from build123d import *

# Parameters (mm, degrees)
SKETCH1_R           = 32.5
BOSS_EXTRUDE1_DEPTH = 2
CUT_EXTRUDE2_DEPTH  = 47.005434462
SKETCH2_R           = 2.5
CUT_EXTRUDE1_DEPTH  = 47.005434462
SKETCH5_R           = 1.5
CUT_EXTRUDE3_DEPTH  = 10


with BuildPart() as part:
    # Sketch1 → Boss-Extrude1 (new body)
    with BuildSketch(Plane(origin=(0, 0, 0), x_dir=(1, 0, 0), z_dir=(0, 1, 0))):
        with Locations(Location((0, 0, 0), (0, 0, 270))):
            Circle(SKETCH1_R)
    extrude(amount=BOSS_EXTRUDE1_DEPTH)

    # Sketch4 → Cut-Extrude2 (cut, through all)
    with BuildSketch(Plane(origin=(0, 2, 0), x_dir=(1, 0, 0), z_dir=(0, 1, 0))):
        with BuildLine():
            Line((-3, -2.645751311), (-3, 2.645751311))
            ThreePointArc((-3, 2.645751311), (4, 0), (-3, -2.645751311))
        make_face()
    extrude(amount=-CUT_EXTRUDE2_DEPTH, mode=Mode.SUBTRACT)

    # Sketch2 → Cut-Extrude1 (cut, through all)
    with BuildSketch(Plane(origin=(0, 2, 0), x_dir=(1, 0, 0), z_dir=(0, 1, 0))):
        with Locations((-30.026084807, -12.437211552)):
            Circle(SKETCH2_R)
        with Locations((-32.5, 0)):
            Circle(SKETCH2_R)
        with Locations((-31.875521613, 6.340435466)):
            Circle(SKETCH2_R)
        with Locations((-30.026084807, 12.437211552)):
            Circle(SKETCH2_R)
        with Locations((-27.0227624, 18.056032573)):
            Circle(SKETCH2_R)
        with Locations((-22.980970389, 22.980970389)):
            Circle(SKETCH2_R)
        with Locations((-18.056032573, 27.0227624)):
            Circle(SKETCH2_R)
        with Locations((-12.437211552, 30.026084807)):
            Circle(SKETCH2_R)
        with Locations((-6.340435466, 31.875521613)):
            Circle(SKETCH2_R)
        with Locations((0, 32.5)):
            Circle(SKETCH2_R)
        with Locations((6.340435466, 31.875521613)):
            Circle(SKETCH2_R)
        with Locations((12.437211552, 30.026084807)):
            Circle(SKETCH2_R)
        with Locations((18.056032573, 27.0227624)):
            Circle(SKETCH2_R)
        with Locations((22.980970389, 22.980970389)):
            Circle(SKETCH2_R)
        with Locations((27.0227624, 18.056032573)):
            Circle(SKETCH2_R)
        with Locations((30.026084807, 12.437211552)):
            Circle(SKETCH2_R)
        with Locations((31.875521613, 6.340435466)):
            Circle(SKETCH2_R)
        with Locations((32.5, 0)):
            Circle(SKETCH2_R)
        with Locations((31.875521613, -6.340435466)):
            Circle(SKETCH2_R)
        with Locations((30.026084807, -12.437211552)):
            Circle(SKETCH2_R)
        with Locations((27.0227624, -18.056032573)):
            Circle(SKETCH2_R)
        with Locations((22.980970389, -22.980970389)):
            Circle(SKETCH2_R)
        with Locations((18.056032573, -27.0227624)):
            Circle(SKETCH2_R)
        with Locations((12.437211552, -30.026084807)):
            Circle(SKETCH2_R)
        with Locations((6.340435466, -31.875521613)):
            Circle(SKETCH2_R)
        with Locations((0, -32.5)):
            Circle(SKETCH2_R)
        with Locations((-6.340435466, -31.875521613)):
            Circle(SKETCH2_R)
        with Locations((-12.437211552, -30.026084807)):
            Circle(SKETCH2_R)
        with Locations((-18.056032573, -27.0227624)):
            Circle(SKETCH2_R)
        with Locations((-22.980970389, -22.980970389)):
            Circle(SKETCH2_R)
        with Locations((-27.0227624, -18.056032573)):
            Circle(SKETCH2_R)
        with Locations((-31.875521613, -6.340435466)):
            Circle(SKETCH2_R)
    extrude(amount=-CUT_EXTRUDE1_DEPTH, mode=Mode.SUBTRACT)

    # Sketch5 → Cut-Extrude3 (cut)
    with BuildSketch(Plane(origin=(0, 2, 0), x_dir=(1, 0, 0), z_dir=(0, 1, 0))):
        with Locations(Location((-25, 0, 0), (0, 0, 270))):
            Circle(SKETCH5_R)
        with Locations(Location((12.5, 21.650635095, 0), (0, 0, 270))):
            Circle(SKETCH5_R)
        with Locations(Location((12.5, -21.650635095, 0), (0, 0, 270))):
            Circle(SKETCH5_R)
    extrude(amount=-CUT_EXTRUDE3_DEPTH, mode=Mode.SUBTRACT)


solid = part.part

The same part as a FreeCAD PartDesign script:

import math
import FreeCAD as App
import Part
import Sketcher

V = App.Vector

doc = App.newDocument("Part")
body = doc.addObject("PartDesign::Body", "Body")

# Sketch on XZ plane
sketch1 = doc.addObject("Sketcher::SketchObject", "Sketch")
body.addObject(sketch1)
sketch1.AttachmentSupport = (doc.XZ_Plane, [""])
sketch1.MapMode = "FlatFace"
sketch1.addGeometry(Part.Circle(V(0, 0, 0), V(0, 0, 1), 32), False)
sketch1.addConstraint([
    Sketcher.Constraint("Coincident", 0, 3, -1, 1),
    Sketcher.Constraint("Diameter", 0, 65.0),
])
pad1 = doc.addObject("PartDesign::Pad", "Pad")
body.addObject(pad1)
pad1.Profile = sketch1
pad1.Length = 2
pad1.Reversed = True

# Sketch on XZ plane
sketch2 = doc.addObject("Sketcher::SketchObject", "Sketch001")
body.addObject(sketch2)
sketch2.AttachmentSupport = (doc.XZ_Plane, [""])
sketch2.MapMode = "FlatFace"
sketch2.AttachmentOffset = App.Placement(V(0, 0, -2), App.Rotation())
sketch2.addGeometry([
    Part.LineSegment(V(-3, -2.6, 0), V(-3, 2.6, 0)),
    Part.ArcOfCircle(Part.Circle(V(0, 0, 0), V(0, 0, 1), 4), math.radians(-139), math.radians(139)),
], False)
sketch2.addConstraint([
    Sketcher.Constraint("Coincident", 0, 1, 1, 1),
    Sketcher.Constraint("Coincident", 1, 2, 0, 2),
    Sketcher.Constraint("Vertical", 0),
    Sketcher.Constraint("Coincident", 1, 3, -1, 1),
    Sketcher.Constraint("Radius", 1, 4.0),
    Sketcher.Constraint("DistanceX", 0, 1, -1, 1, 3.0),
])
pocket1 = doc.addObject("PartDesign::Pocket", "Pocket")
body.addObject(pocket1)
pocket1.Profile = sketch2
pocket1.Type = "ThroughAll"
pocket1.Reversed = True

# Sketch on XZ plane
sketch3 = doc.addObject("Sketcher::SketchObject", "Sketch002")
body.addObject(sketch3)
sketch3.AttachmentSupport = (doc.XZ_Plane, [""])
sketch3.MapMode = "FlatFace"
sketch3.AttachmentOffset = App.Placement(V(0, 0, -2), App.Rotation())
sketch3.addGeometry([
    Part.Circle(V(-30, 12.4, 0), V(0, 0, 1), 2.5),  # 0
    Part.Circle(V(-32.5, 0, 0), V(0, 0, 1), 2.5),  # 1
    Part.Circle(V(-31.9, -6.3, 0), V(0, 0, 1), 2.5),  # 2
    Part.Circle(V(-30, -12.4, 0), V(0, 0, 1), 2.5),  # 3
    Part.Circle(V(-27, -18.1, 0), V(0, 0, 1), 2.5),  # 4
    Part.Circle(V(-23, -23, 0), V(0, 0, 1), 2.5),  # 5
    Part.Circle(V(-18.1, -27, 0), V(0, 0, 1), 2.5),  # 6
    Part.Circle(V(-12.4, -30, 0), V(0, 0, 1), 2.5),  # 7
    Part.Circle(V(-6.3, -31.9, 0), V(0, 0, 1), 2.5),  # 8
    Part.Circle(V(0, -32.5, 0), V(0, 0, 1), 2.5),  # 9
    Part.Circle(V(6.3, -31.9, 0), V(0, 0, 1), 2.5),  # 10
    Part.Circle(V(12.4, -30, 0), V(0, 0, 1), 2.5),  # 11
    Part.Circle(V(18.1, -27, 0), V(0, 0, 1), 2.5),  # 12
    Part.Circle(V(23, -23, 0), V(0, 0, 1), 2.5),  # 13
    Part.Circle(V(27, -18.1, 0), V(0, 0, 1), 2.5),  # 14
    Part.Circle(V(30, -12.4, 0), V(0, 0, 1), 2.5),  # 15
    Part.Circle(V(31.9, -6.3, 0), V(0, 0, 1), 2.5),  # 16
    Part.Circle(V(32.5, 0, 0), V(0, 0, 1), 2.5),  # 17
    Part.Circle(V(31.9, 6.3, 0), V(0, 0, 1), 2.5),  # 18
    Part.Circle(V(30, 12.4, 0), V(0, 0, 1), 2.5),  # 19
    Part.Circle(V(27, 18.1, 0), V(0, 0, 1), 2.5),  # 20
    Part.Circle(V(23, 23, 0), V(0, 0, 1), 2.5),  # 21
    Part.Circle(V(18.1, 27, 0), V(0, 0, 1), 2.5),  # 22
    Part.Circle(V(12.4, 30, 0), V(0, 0, 1), 2.5),  # 23
    Part.Circle(V(6.3, 31.9, 0), V(0, 0, 1), 2.5),  # 24
    Part.Circle(V(0, 32.5, 0), V(0, 0, 1), 2.5),  # 25
    Part.Circle(V(-6.3, 31.9, 0), V(0, 0, 1), 2.5),  # 26
    Part.Circle(V(-12.4, 30, 0), V(0, 0, 1), 2.5),  # 27
    Part.Circle(V(-18.1, 27, 0), V(0, 0, 1), 2.5),  # 28
    Part.Circle(V(-23, 23, 0), V(0, 0, 1), 2.5),  # 29
    Part.Circle(V(-27, 18.1, 0), V(0, 0, 1), 2.5),  # 30
    Part.Circle(V(-31.9, 6.3, 0), V(0, 0, 1), 2.5),  # 31
], False)
sketch3.addConstraint([
    Sketcher.Constraint("Equal", 0, 1),
    Sketcher.Constraint("Equal", 1, 2),
    Sketcher.Constraint("Equal", 2, 3),
    Sketcher.Constraint("Equal", 3, 4),
    Sketcher.Constraint("Equal", 4, 5),
    Sketcher.Constraint("Equal", 5, 6),
    Sketcher.Constraint("Equal", 6, 7),
    Sketcher.Constraint("Equal", 7, 8),
    Sketcher.Constraint("Equal", 8, 9),
    Sketcher.Constraint("Equal", 9, 10),
    Sketcher.Constraint("Equal", 10, 11),
    Sketcher.Constraint("Equal", 11, 12),
    Sketcher.Constraint("Equal", 12, 13),
    Sketcher.Constraint("Equal", 13, 14),
    Sketcher.Constraint("Equal", 14, 15),
    Sketcher.Constraint("Equal", 15, 16),
    Sketcher.Constraint("Equal", 16, 17),
    Sketcher.Constraint("Equal", 17, 18),
    Sketcher.Constraint("Equal", 18, 19),
    Sketcher.Constraint("Equal", 19, 20),
    Sketcher.Constraint("Equal", 20, 21),
    Sketcher.Constraint("Equal", 21, 22),
    Sketcher.Constraint("Equal", 22, 23),
    Sketcher.Constraint("Equal", 23, 24),
    Sketcher.Constraint("Equal", 24, 25),
    Sketcher.Constraint("Equal", 25, 26),
    Sketcher.Constraint("Equal", 26, 27),
    Sketcher.Constraint("Equal", 27, 28),
    Sketcher.Constraint("Equal", 28, 29),
    Sketcher.Constraint("Equal", 29, 30),
    Sketcher.Constraint("Equal", 30, 31),
    Sketcher.Constraint("Symmetric", 0, 3, 15, 3, -1, 1),
    Sketcher.Constraint("Symmetric", 1, 3, 17, 3, -1, 1),
    Sketcher.Constraint("Symmetric", 2, 3, 18, 3, -1, 1),
    Sketcher.Constraint("Symmetric", 3, 3, 19, 3, -1, 1),
    Sketcher.Constraint("Symmetric", 4, 3, 20, 3, -1, 1),
    Sketcher.Constraint("Symmetric", 5, 3, 21, 3, -1, 1),
    Sketcher.Constraint("Symmetric", 6, 3, 22, 3, -1, 1),
    Sketcher.Constraint("Symmetric", 7, 3, 23, 3, -1, 1),
    Sketcher.Constraint("Symmetric", 8, 3, 24, 3, -1, 1),
    Sketcher.Constraint("Symmetric", 9, 3, 25, 3, -1, 1),
    Sketcher.Constraint("Symmetric", 10, 3, 26, 3, -1, 1),
    Sketcher.Constraint("Symmetric", 11, 3, 27, 3, -1, 1),
    Sketcher.Constraint("Symmetric", 12, 3, 28, 3, -1, 1),
    Sketcher.Constraint("Symmetric", 13, 3, 29, 3, -1, 1),
    Sketcher.Constraint("Symmetric", 14, 3, 30, 3, -1, 1),
    Sketcher.Constraint("Symmetric", 16, 3, 31, 3, -1, 1),
    Sketcher.Constraint("Symmetric", 8, 3, 10, 3, -2),
    Sketcher.Constraint("Symmetric", 7, 3, 11, 3, -2),
    Sketcher.Constraint("Symmetric", 6, 3, 12, 3, -2),
    Sketcher.Constraint("Symmetric", 5, 3, 13, 3, -2),
    Sketcher.Constraint("Symmetric", 4, 3, 14, 3, -2),
    Sketcher.Constraint("Symmetric", 3, 3, 15, 3, -2),
    Sketcher.Constraint("Symmetric", 2, 3, 16, 3, -2),
    Sketcher.Constraint("PointOnObject", 1, 3, -1),
    Sketcher.Constraint("PointOnObject", 9, 3, -2),
    Sketcher.Constraint("Diameter", 0, 5.0),
    Sketcher.Constraint("DistanceX", 1, 3, -1, 1, 32.5),
    Sketcher.Constraint("DistanceY", 9, 3, -1, 1, 32.5),
    Sketcher.Constraint("DistanceY", -1, 1, 0, 3, 12.437212),
    Sketcher.Constraint("DistanceX", 2, 3, -1, 1, 31.875522),
    Sketcher.Constraint("DistanceX", 5, 3, -1, 1, 22.98097),
    Sketcher.Constraint("DistanceY", 5, 3, -1, 1, 22.98097),
    Sketcher.Constraint("DistanceX", 7, 3, -1, 1, 12.437212),
    Sketcher.Constraint("DistanceY", 8, 3, -1, 1, 31.875522),
    Sketcher.Constraint("DistanceY", 4, 3, 3, 3, 5.618821),
    Sketcher.Constraint("DistanceX", 2, 3, 4, 3, 4.852759),
    Sketcher.Constraint("DistanceX", 4, 3, 6, 3, 8.96673),
    Sketcher.Constraint("DistanceY", 6, 3, 4, 3, 8.96673),
    Sketcher.Constraint("DistanceY", 7, 3, 2, 3, 23.685649),
    Sketcher.Constraint("DistanceX", 3, 3, 8, 3, 23.685649),
    Sketcher.Constraint("DistanceX", 8, 3, 10, 3, 12.680871),
    Sketcher.Constraint("DistanceY", 16, 3, 18, 3, 12.680871),
])
pocket2 = doc.addObject("PartDesign::Pocket", "Pocket001")
body.addObject(pocket2)
pocket2.Profile = sketch3
pocket2.Type = "ThroughAll"
pocket2.Reversed = True

# Sketch on XZ plane
sketch4 = doc.addObject("Sketcher::SketchObject", "Sketch003")
body.addObject(sketch4)
sketch4.AttachmentSupport = (doc.XZ_Plane, [""])
sketch4.MapMode = "FlatFace"
sketch4.AttachmentOffset = App.Placement(V(0, 0, -2), App.Rotation())
sketch4.addGeometry([
    Part.Circle(V(-25, 0, 0), V(0, 0, 1), 1.5),
    Part.Circle(V(12.5, -21.7, 0), V(0, 0, 1), 1.5),
    Part.Circle(V(12.5, 21.7, 0), V(0, 0, 1), 1.5),
], False)
sketch4.addConstraint([
    Sketcher.Constraint("Equal", 0, 1),
    Sketcher.Constraint("Equal", 1, 2),
    Sketcher.Constraint("Symmetric", 1, 3, 2, 3, -1),
    Sketcher.Constraint("PointOnObject", 0, 3, -1),
    Sketcher.Constraint("Diameter", 0, 3.0),
    Sketcher.Constraint("DistanceX", 0, 3, -1, 1, 25.0),
    Sketcher.Constraint("DistanceX", -1, 1, 1, 3, 12.5),
    Sketcher.Constraint("DistanceY", 1, 3, 2, 3, 43.30127),
])
pocket3 = doc.addObject("PartDesign::Pocket", "Pocket002")
body.addObject(pocket3)
pocket3.Profile = sketch4
pocket3.Length = 10
pocket3.Reversed = True

doc.recompute()
